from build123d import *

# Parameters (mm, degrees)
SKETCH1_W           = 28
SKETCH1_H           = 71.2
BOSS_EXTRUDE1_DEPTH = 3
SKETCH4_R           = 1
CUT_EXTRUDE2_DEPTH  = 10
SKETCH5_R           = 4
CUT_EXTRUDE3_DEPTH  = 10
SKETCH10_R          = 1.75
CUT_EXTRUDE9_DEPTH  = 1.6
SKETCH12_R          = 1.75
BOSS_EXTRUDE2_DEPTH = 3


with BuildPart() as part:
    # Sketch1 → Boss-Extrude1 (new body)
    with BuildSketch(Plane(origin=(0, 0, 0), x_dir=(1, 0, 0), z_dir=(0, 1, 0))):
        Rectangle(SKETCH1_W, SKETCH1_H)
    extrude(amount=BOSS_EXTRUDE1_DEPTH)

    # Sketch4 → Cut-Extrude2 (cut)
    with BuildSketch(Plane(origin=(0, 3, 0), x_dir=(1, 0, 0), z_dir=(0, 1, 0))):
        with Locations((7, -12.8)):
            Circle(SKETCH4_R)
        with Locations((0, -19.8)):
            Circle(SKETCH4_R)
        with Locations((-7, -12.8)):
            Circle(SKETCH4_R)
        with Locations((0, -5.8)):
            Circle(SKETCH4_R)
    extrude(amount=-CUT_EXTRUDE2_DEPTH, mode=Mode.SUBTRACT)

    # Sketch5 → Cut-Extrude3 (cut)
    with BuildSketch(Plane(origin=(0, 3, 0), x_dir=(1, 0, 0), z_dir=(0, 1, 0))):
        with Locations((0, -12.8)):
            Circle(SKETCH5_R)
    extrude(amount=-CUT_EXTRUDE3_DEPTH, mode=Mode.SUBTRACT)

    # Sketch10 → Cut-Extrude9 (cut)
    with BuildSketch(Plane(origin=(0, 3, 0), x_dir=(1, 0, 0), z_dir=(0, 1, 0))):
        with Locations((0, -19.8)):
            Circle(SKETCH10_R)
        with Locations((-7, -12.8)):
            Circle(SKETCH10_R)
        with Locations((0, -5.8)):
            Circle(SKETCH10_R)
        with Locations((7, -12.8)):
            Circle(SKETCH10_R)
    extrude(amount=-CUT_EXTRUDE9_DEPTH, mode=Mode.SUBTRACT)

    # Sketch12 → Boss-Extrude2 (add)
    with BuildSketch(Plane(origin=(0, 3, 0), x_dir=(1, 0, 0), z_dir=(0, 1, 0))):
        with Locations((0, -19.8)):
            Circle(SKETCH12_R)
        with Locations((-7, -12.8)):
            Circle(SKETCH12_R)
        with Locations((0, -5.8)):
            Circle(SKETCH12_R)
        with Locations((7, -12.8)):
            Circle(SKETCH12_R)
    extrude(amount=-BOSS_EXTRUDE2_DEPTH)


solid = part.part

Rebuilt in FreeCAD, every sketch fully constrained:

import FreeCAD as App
import Part
import Sketcher

V = App.Vector


def add_polygon(sketch, points):
    """Adds a closed chain of lines whose ends are joined by coincident constraints."""
    first, n = sketch.GeometryCount, len(points)
    for a, b in zip(points, points[1:] + points[:1]):
        sketch.addGeometry(Part.LineSegment(App.Vector(*a, 0), App.Vector(*b, 0)), False)
    for i in range(n):
        sketch.addConstraint(Sketcher.Constraint("Coincident", first + i, 2, first + (i + 1) % n, 1))

doc = App.newDocument("Part")
body = doc.addObject("PartDesign::Body", "Body")

sketch1 = body.newObject("Sketcher::SketchObject", "Sketch")
sketch1.AttachmentSupport = (doc.getObject("XZ_Plane"), [""])
sketch1.MapMode = "FlatFace"
add_polygon(sketch1, [(-14, -35.6), (-14, 35.6), (14, 35.6), (14, -35.6)])
sketch1.addConstraint(Sketcher.Constraint("Vertical", 0))
sketch1.addConstraint(Sketcher.Constraint("Horizontal", 1))
sketch1.addConstraint(Sketcher.Constraint("Vertical", 2))
sketch1.addConstraint(Sketcher.Constraint("Horizontal", 3))
sketch1.addConstraint(Sketcher.Constraint("Symmetric", 0, 2, 2, 2, -1, 1))
sketch1.addConstraint(Sketcher.Constraint("DistanceX", 1, 1, 1, 2, 28.0))
sketch1.addConstraint(Sketcher.Constraint("DistanceY", 0, 1, 0, 2, 71.2))
pad1 = body.newObject("PartDesign::Pad", "Pad")
pad1.Profile = sketch1
pad1.Length = 3
pad1.Reversed = True

sketch2 = body.newObject("Sketcher::SketchObject", "Sketch001")
sketch2.AttachmentSupport = (doc.getObject("XZ_Plane"), [""])
sketch2.MapMode = "FlatFace"
sketch2.AttachmentOffset = App.Placement(V(0, 0, -3), App.Rotation())
sketch2.addGeometry(Part.Circle(V(7, 12.8, 0), V(0, 0, 1), 1), False)
sketch2.addGeometry(Part.Circle(V(0, 19.8, 0), V(0, 0, 1), 1), False)
sketch2.addGeometry(Part.Circle(V(-7, 12.8, 0), V(0, 0, 1), 1), False)
sketch2.addGeometry(Part.Circle(V(0, 5.8, 0), V(0, 0, 1), 1), False)
sketch2.addConstraint(Sketcher.Constraint("Equal", 0, 1))
sketch2.addConstraint(Sketcher.Constraint("Equal", 1, 2))
sketch2.addConstraint(Sketcher.Constraint("Equal", 2, 3))
sketch2.addConstraint(Sketcher.Constraint("Symmetric", 0, 3, 2, 3, -2))
sketch2.addConstraint(Sketcher.Constraint("PointOnObject", 1, 3, -2))
sketch2.addConstraint(Sketcher.Constraint("PointOnObject", 3, 3, -2))
sketch2.addConstraint(Sketcher.Constraint("Diameter", 0, 2.0))
sketch2.addConstraint(Sketcher.Constraint("DistanceX", -1, 1, 0, 3, 7.0))
sketch2.addConstraint(Sketcher.Constraint("DistanceY", 0, 3, 1, 3, 7.0))
sketch2.addConstraint(Sketcher.Constraint("DistanceY", 3, 3, 0, 3, 7.0))
sketch2.addConstraint(Sketcher.Constraint("DistanceY", -1, 1, 0, 3, 12.8))
pocket1 = body.newObject("PartDesign::Pocket", "Pocket")
pocket1.Profile = sketch2
pocket1.Length = 10
pocket1.Reversed = True

sketch3 = body.newObject("Sketcher::SketchObject", "Sketch002")
sketch3.AttachmentSupport = (doc.getObject("XZ_Plane"), [""])
sketch3.MapMode = "FlatFace"
sketch3.AttachmentOffset = App.Placement(V(0, 0, -3), App.Rotation())
sketch3.addGeometry(Part.Circle(V(0, 12.8, 0), V(0, 0, 1), 4), False)
sketch3.addConstraint(Sketcher.Constraint("PointOnObject", 0, 3, -2))
sketch3.addConstraint(Sketcher.Constraint("Diameter", 0, 8.0))
sketch3.addConstraint(Sketcher.Constraint("DistanceY", -1, 1, 0, 3, 12.8))
pocket2 = body.newObject("PartDesign::Pocket", "Pocket001")
pocket2.Profile = sketch3
pocket2.Length = 10
pocket2.Reversed = True

sketch4 = body.newObject("Sketcher::SketchObject", "Sketch003")
sketch4.AttachmentSupport = (doc.getObject("XZ_Plane"), [""])
sketch4.MapMode = "FlatFace"
sketch4.AttachmentOffset = App.Placement(V(0, 0, -3), App.Rotation())
sketch4.addGeometry(Part.Circle(V(0, 19.8, 0), V(0, 0, 1), 1.75), False)
sketch4.addGeometry(Part.Circle(V(-7, 12.8, 0), V(0, 0, 1), 1.75), False)
sketch4.addGeometry(Part.Circle(V(0, 5.8, 0), V(0, 0, 1), 1.75), False)
sketch4.addGeometry(Part.Circle(V(7, 12.8, 0), V(0, 0, 1), 1.75), False)
sketch4.addConstraint(Sketcher.Constraint("Equal", 0, 1))
sketch4.addConstraint(Sketcher.Constraint("Equal", 1, 2))
sketch4.addConstraint(Sketcher.Constraint("Equal", 2, 3))
sketch4.addConstraint(Sketcher.Constraint("Symmetric", 1, 3, 3, 3, -2))
sketch4.addConstraint(Sketcher.Constraint("PointOnObject", 0, 3, -2))
sketch4.addConstraint(Sketcher.Constraint("PointOnObject", 2, 3, -2))
sketch4.addConstraint(Sketcher.Constraint("Diameter", 0, 3.5))
sketch4.addConstraint(Sketcher.Constraint("DistanceX", 1, 3, -1, 1, 7.0))
sketch4.addConstraint(Sketcher.Constraint("DistanceY", 1, 3, 0, 3, 7.0))
sketch4.addConstraint(Sketcher.Constraint("DistanceY", 2, 3, 1, 3, 7.0))
sketch4.addConstraint(Sketcher.Constraint("DistanceY", -1, 1, 0, 3, 19.8))
pocket3 = body.newObject("PartDesign::Pocket", "Pocket002")
pocket3.Profile = sketch4
pocket3.Length = 1.6
pocket3.Reversed = True

sketch5 = body.newObject("Sketcher::SketchObject", "Sketch004")
sketch5.AttachmentSupport = (doc.getObject("XZ_Plane"), [""])
sketch5.MapMode = "FlatFace"
sketch5.AttachmentOffset = App.Placement(V(0, 0, -3), App.Rotation())
sketch5.addGeometry(Part.Circle(V(0, 19.8, 0), V(0, 0, 1), 1.75), False)
sketch5.addGeometry(Part.Circle(V(-7, 12.8, 0), V(0, 0, 1), 1.75), False)
sketch5.addGeometry(Part.Circle(V(0, 5.8, 0), V(0, 0, 1), 1.75), False)
sketch5.addGeometry(Part.Circle(V(7, 12.8, 0), V(0, 0, 1), 1.75), False)
sketch5.addConstraint(Sketcher.Constraint("Equal", 0, 1))
sketch5.addConstraint(Sketcher.Constraint("Equal", 1, 2))
sketch5.addConstraint(Sketcher.Constraint("Equal", 2, 3))
sketch5.addConstraint(Sketcher.Constraint("Symmetric", 1, 3, 3, 3, -2))
sketch5.addConstraint(Sketcher.Constraint("PointOnObject", 0, 3, -2))
sketch5.addConstraint(Sketcher.Constraint("PointOnObject", 2, 3, -2))
sketch5.addConstraint(Sketcher.Constraint("Diameter", 0, 3.5))
sketch5.addConstraint(Sketcher.Constraint("DistanceX", 1, 3, -1, 1, 7.0))
sketch5.addConstraint(Sketcher.Constraint("DistanceY", 1, 3, 0, 3, 7.0))
sketch5.addConstraint(Sketcher.Constraint("DistanceY", 2, 3, 1, 3, 7.0))
sketch5.addConstraint(Sketcher.Constraint("DistanceY", -1, 1, 0, 3, 19.8))
pad2 = body.newObject("PartDesign::Pad", "Pad001")
pad2.Profile = sketch5
pad2.Length = 3

doc.recompute()
